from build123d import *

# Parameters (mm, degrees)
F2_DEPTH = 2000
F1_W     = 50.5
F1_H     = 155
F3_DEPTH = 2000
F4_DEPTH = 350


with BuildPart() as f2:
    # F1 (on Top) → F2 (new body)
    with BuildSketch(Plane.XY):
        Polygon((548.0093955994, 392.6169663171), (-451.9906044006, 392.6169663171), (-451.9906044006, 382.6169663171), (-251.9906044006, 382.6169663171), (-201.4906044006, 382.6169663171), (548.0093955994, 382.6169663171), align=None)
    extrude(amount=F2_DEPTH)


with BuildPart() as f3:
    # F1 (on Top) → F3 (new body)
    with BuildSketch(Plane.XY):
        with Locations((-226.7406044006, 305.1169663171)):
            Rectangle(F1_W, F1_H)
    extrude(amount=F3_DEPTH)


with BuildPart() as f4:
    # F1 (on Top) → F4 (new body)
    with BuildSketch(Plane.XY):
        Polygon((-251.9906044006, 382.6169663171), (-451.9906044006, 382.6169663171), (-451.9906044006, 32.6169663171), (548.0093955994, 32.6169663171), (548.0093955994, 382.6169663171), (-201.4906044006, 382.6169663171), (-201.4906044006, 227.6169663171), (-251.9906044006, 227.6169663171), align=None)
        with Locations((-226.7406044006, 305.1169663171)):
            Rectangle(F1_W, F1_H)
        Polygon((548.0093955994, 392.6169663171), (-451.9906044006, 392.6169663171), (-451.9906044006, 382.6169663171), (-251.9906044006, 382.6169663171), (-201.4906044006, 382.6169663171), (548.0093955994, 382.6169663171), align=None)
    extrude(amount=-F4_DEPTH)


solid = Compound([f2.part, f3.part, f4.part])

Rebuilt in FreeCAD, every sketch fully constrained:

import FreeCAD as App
import Part
import Sketcher
from FreeCAD import Vector
Q = App.Units.Quantity

doc = App.newDocument("Part")
body = doc.addObject("PartDesign::Body", "Body")

sketch1 = body.newObject("Sketcher::SketchObject", "Sketch")
sketch1.AttachmentSupport = (doc.getObject("XY_Plane"), [""])
sketch1.MapMode = "FlatFace"
sketch1.addGeometry(Part.LineSegment(Vector(548.009396, 392.616966, 0), Vector(-451.990604, 392.616966, 0)), False)
sketch1.addGeometry(Part.LineSegment(Vector(-451.990604, 392.616966, 0), Vector(-451.990604, 382.616966, 0)), False)
sketch1.addGeometry(Part.LineSegment(Vector(-451.990604, 382.616966, 0), Vector(548.009396, 382.616966, 0)), False)
sketch1.addGeometry(Part.LineSegment(Vector(548.009396, 382.616966, 0), Vector(548.009396, 392.616966, 0)), False)
sketch1.addConstraint(Sketcher.Constraint("Coincident", 0, 2, 1, 1))
sketch1.addConstraint(Sketcher.Constraint("Coincident", 1, 2, 2, 1))
sketch1.addConstraint(Sketcher.Constraint("Coincident", 2, 2, 3, 1))
sketch1.addConstraint(Sketcher.Constraint("Coincident", 3, 2, 0, 1))
sketch1.addConstraint(Sketcher.Constraint("Horizontal", 0))
sketch1.addConstraint(Sketcher.Constraint("Vertical", 1))
sketch1.addConstraint(Sketcher.Constraint("Horizontal", 2))
sketch1.addConstraint(Sketcher.Constraint("Vertical", 3))
sketch1.addConstraint(Sketcher.Constraint("DistanceX", 0, 2, 0, 1, Q("1000 mm")))
sketch1.addConstraint(Sketcher.Constraint("DistanceY", 1, 2, 1, 1, Q("10 mm")))
sketch1.addConstraint(Sketcher.Constraint("DistanceX", 0, 2, -1, 1, Q("451.990604 mm")))
sketch1.addConstraint(Sketcher.Constraint("DistanceY", -1, 1, 0, 2, Q("392.616966 mm")))
pad1 = body.newObject("PartDesign::Pad", "Pad")
pad1.Profile = sketch1
pad1.Length = 2000
body2 = doc.addObject("PartDesign::Body", "Body001")

sketch2 = body2.newObject("Sketcher::SketchObject", "Sketch001")
sketch2.AttachmentSupport = (doc.getObject("XY_Plane001"), [""])
sketch2.MapMode = "FlatFace"
sketch2.addGeometry(Part.LineSegment(Vector(-251.990604, 382.616966, 0), Vector(-251.990604, 227.616966, 0)), False)
sketch2.addGeometry(Part.LineSegment(Vector(-251.990604, 227.616966, 0), Vector(-201.490604, 227.616966, 0)), False)
sketch2.addGeometry(Part.LineSegment(Vector(-201.490604, 227.616966, 0), Vector(-201.490604, 382.616966, 0)), False)
sketch2.addGeometry(Part.LineSegment(Vector(-201.490604, 382.616966, 0), Vector(-251.990604, 382.616966, 0)), False)
sketch2.addConstraint(Sketcher.Constraint("Coincident", 0, 2, 1, 1))
sketch2.addConstraint(Sketcher.Constraint("Coincident", 1, 2, 2, 1))
sketch2.addConstraint(Sketcher.Constraint("Coincident", 2, 2, 3, 1))
sketch2.addConstraint(Sketcher.Constraint("Coincident", 3, 2, 0, 1))
sketch2.addConstraint(Sketcher.Constraint("Vertical", 0))
sketch2.addConstraint(Sketcher.Constraint("Horizontal", 1))
sketch2.addConstraint(Sketcher.Constraint("Vertical", 2))
sketch2.addConstraint(Sketcher.Constraint("Horizontal", 3))
sketch2.addConstraint(Sketcher.Constraint("DistanceY", 0, 2, 0, 1, Q("155 mm")))
sketch2.addConstraint(Sketcher.Constraint("DistanceX", 1, 1, 1, 2, Q("50.5 mm")))
sketch2.addConstraint(Sketcher.Constraint("DistanceX", 0, 2, -1, 1, Q("251.990604 mm")))
sketch2.addConstraint(Sketcher.Constraint("DistanceY", -1, 1, 0, 2, Q("227.616966 mm")))
pad2 = body2.newObject("PartDesign::Pad", "Pad001")
pad2.Profile = sketch2
pad2.Length = 2000
body3 = doc.addObject("PartDesign::Body", "Body002")

sketch3 = body3.newObject("Sketcher::SketchObject", "Sketch002")
sketch3.AttachmentSupport = (doc.getObject("XY_Plane002"), [""])
sketch3.MapMode = "FlatFace"
sketch3.addGeometry(Part.LineSegment(Vector(-451.990604, 32.616966, 0), Vector(548.009396, 32.616966, 0)), False)
sketch3.addGeometry(Part.LineSegment(Vector(548.009396, 32.616966, 0), Vector(548.009396, 392.616966, 0)), False)
sketch3.addGeometry(Part.LineSegment(Vector(548.009396, 392.616966, 0), Vector(-451.990604, 392.616966, 0)), False)
sketch3.addGeometry(Part.LineSegment(Vector(-451.990604, 392.616966, 0), Vector(-451.990604, 32.616966, 0)), False)
sketch3.addConstraint(Sketcher.Constraint("Coincident", 0, 2, 1, 1))
sketch3.addConstraint(Sketcher.Constraint("Coincident", 1, 2, 2, 1))
sketch3.addConstraint(Sketcher.Constraint("Coincident", 2, 2, 3, 1))
sketch3.addConstraint(Sketcher.Constraint("Coincident", 3, 2, 0, 1))
sketch3.addConstraint(Sketcher.Constraint("Horizontal", 0))
sketch3.addConstraint(Sketcher.Constraint("Vertical", 1))
sketch3.addConstraint(Sketcher.Constraint("Horizontal", 2))
sketch3.addConstraint(Sketcher.Constraint("Vertical", 3))
sketch3.addConstraint(Sketcher.Constraint("DistanceX", 0, 1, 0, 2, Q("1000 mm")))
sketch3.addConstraint(Sketcher.Constraint("DistanceY", 1, 1, 1, 2, Q("360 mm")))
sketch3.addConstraint(Sketcher.Constraint("DistanceX", -1, 1, 0, 2, Q("548.009396 mm")))
sketch3.addConstraint(Sketcher.Constraint("DistanceY", -1, 1, 0, 2, Q("32.616966 mm")))
pad3 = body3.newObject("PartDesign::Pad", "Pad002")
pad3.Profile = sketch3
pad3.Length = 350
pad3.Reversed = True

doc.recompute()
